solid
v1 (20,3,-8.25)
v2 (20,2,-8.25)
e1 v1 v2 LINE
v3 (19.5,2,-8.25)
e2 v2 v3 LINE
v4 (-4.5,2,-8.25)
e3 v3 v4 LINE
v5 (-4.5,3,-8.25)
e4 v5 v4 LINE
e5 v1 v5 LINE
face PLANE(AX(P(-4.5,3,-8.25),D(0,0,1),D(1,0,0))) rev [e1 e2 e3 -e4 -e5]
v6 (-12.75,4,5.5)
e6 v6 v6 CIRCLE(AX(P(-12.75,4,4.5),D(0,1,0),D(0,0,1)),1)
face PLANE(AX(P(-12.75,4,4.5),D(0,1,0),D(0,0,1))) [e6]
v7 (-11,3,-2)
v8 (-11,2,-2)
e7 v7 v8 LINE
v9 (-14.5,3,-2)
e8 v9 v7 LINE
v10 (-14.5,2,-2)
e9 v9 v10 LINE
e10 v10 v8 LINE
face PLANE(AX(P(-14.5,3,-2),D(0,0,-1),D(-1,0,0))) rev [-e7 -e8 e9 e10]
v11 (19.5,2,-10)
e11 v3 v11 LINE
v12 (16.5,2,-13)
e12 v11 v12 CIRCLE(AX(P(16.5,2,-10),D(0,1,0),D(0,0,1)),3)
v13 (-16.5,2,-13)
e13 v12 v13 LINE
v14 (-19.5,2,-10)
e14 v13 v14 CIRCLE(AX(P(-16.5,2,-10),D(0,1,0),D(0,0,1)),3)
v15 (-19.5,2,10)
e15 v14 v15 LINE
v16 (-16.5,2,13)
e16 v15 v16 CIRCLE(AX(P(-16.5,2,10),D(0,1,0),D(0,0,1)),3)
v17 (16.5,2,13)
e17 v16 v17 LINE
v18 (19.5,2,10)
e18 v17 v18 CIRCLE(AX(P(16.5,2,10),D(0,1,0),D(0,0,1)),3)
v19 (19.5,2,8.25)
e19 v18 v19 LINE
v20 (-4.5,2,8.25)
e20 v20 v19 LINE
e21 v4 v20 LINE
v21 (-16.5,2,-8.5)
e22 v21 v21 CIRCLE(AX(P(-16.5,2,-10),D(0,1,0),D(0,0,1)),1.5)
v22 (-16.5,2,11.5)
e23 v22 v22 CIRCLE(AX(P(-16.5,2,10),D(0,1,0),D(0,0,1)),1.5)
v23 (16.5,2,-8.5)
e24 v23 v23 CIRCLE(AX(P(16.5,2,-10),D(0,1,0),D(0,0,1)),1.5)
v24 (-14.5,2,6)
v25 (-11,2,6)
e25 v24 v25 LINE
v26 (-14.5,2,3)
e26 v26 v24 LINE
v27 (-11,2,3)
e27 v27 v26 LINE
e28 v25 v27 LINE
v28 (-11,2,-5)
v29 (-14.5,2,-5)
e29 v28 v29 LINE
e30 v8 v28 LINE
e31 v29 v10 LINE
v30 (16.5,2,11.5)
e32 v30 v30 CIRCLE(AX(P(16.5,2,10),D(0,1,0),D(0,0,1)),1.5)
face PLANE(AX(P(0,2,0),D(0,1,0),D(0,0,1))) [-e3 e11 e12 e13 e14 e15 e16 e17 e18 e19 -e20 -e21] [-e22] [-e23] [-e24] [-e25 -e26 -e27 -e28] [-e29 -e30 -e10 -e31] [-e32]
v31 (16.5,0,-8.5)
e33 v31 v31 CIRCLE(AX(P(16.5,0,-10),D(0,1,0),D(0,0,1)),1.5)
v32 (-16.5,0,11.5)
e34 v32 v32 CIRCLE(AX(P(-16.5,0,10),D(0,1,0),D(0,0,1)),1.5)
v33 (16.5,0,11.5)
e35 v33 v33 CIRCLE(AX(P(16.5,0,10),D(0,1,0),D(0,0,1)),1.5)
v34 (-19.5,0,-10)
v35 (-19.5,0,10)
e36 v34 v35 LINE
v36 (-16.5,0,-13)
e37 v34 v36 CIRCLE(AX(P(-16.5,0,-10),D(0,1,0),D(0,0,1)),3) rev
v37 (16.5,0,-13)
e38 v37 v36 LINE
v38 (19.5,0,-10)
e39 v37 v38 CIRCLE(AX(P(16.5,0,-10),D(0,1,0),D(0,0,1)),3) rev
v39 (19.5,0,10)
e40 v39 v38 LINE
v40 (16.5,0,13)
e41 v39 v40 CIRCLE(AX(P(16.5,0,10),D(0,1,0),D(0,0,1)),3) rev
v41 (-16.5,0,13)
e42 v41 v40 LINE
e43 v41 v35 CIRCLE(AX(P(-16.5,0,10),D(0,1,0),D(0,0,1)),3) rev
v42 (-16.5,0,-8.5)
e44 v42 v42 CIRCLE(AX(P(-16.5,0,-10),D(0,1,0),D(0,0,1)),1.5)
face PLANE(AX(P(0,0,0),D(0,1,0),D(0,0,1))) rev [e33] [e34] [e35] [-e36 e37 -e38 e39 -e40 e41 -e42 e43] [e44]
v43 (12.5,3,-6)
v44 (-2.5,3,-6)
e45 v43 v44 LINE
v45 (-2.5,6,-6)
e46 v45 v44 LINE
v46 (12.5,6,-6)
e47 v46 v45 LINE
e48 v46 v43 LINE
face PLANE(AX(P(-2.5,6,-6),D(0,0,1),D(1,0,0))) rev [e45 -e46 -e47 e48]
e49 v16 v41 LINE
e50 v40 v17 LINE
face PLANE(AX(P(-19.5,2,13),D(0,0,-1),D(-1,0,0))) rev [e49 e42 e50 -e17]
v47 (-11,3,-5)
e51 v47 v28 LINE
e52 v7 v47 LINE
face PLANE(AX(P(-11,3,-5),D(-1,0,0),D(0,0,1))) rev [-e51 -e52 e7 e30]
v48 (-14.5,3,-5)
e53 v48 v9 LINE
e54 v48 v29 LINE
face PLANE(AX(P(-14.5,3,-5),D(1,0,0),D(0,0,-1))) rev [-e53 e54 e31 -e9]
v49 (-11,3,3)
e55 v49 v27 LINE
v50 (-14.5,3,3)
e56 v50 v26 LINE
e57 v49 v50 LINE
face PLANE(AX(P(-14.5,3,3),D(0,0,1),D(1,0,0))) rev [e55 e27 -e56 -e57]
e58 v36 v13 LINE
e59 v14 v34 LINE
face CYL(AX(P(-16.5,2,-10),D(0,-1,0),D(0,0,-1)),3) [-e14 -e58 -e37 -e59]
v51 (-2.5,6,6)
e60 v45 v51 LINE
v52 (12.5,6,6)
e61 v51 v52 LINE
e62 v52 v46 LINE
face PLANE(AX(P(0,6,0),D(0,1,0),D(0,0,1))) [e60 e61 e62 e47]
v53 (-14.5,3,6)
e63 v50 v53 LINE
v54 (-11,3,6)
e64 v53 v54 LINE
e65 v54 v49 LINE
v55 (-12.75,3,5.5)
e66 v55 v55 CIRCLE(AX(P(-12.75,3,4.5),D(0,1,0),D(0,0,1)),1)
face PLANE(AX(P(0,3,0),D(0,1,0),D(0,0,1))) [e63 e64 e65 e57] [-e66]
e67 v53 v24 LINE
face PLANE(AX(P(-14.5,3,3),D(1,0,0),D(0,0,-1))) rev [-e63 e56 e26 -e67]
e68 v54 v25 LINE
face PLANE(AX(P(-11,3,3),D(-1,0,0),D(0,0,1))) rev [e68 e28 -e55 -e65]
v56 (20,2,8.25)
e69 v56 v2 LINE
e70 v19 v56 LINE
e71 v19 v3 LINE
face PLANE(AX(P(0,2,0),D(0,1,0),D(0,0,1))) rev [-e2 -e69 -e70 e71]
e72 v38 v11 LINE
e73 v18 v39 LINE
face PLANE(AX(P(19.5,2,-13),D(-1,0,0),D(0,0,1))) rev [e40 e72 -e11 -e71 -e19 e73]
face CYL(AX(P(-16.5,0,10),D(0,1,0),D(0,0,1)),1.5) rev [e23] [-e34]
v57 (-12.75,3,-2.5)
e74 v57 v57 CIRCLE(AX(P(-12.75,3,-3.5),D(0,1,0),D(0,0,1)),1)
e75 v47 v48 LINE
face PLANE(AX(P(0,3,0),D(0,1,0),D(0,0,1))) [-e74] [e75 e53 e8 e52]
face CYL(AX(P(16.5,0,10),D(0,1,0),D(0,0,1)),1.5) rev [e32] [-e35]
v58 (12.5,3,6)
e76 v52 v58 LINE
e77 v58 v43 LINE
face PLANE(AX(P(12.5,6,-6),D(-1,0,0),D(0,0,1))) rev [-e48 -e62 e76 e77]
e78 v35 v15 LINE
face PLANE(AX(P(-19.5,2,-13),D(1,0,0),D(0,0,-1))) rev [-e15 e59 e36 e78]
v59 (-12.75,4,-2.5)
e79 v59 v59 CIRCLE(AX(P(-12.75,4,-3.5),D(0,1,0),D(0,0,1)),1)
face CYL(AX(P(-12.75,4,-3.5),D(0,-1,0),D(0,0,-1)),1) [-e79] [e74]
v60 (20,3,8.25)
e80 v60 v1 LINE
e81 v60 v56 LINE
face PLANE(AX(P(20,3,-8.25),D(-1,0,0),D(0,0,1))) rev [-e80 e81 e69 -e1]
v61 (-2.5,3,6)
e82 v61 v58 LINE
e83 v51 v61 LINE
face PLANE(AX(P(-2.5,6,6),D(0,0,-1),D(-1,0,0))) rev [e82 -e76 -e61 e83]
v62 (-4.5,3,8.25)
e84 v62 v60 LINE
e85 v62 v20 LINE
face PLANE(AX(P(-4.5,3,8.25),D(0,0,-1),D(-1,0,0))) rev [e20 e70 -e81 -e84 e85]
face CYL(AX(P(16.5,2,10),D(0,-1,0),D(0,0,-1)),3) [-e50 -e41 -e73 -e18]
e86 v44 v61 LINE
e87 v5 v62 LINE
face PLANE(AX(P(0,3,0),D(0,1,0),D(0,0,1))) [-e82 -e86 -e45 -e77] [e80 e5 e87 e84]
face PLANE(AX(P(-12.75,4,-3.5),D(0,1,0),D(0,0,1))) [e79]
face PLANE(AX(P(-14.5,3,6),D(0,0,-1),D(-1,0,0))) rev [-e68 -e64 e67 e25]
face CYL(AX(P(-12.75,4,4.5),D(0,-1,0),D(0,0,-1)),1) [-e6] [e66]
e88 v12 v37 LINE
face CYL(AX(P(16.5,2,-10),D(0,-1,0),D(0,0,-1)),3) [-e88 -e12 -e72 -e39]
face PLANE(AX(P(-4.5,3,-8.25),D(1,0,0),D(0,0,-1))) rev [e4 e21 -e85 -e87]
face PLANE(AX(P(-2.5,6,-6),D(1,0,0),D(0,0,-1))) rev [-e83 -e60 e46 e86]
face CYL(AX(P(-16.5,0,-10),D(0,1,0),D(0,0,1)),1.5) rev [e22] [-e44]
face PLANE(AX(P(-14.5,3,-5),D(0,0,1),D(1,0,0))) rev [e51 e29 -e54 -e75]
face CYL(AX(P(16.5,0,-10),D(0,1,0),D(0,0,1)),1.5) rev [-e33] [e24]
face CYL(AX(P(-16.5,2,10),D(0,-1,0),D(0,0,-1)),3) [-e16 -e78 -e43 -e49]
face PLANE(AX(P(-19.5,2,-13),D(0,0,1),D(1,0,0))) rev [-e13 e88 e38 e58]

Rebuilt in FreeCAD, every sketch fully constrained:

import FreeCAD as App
import Part
import Sketcher


def edges_at(feature, points):
    """Names of the edges that pass closest to the given points."""
    edges = feature.Shape.Edges
    near = lambda p: min(range(len(edges)), key=lambda i: edges[i].distToShape(Part.Vertex(*p))[0])
    return sorted({f"Edge{near(p) + 1}" for p in points})

doc = App.newDocument("Part")
params = doc.addObject("Spreadsheet::Sheet", "Params")
for row, (alias, value) in enumerate([
    ("sketch1_width", "39 mm"),
    ("sketch1_height", "26 mm"),
    ("pad1_length", "2 mm"),
    ("sketch2_diameter", "3 mm"),
    ("sketch3_width", "24.5 mm"),
    ("sketch3_height", "16.5 mm"),
    ("pad2_length", "1 mm"),
    ("sketch4_width", "15 mm"),
    ("sketch4_height", "12 mm"),
    ("pad3_length", "3 mm"),
    ("sketch5_height", "3 mm"),
    ("sketch5_width", "3.5 mm"),
    ("pad4_length", "1 mm"),
    ("sketch6_diameter", "2 mm"),
    ("pad5_length", "1 mm"),
    ("fillet_radius", "3 mm"),
], start=1):
    params.set(f"A{row}", alias)
    params.set(f"B{row}", "=" + value)
    params.setAlias(f"B{row}", alias)

body = doc.addObject("PartDesign::Body", "Body")

# Sketch on XZ plane
sketch1 = body.newObject("Sketcher::SketchObject", "Sketch")
sketch1.AttachmentSupport = (doc.getObject("XZ_Plane"), [""])
sketch1.MapMode = "FlatFace"
sketch1.addGeometry([
    Part.LineSegment(App.Vector(-20, -13, 0), App.Vector(-20, 13, 0)),
    Part.LineSegment(App.Vector(-20, 13, 0), App.Vector(20, 13, 0)),
    Part.LineSegment(App.Vector(20, 13, 0), App.Vector(20, -13, 0)),
    Part.LineSegment(App.Vector(20, -13, 0), App.Vector(-20, -13, 0)),
], False)
sketch1.addConstraint([
    Sketcher.Constraint("Coincident", 0, 2, 1, 1),
    Sketcher.Constraint("Coincident", 1, 2, 2, 1),
    Sketcher.Constraint("Coincident", 2, 2, 3, 1),
    Sketcher.Constraint("Coincident", 3, 2, 0, 1),
    Sketcher.Constraint("Vertical", 0),
    Sketcher.Constraint("Horizontal", 1),
    Sketcher.Constraint("Vertical", 2),
    Sketcher.Constraint("Horizontal", 3),
    Sketcher.Constraint("Symmetric", 0, 2, 2, 2, -1, 1),
    Sketcher.Constraint("DistanceX", 1, 1, 1, 2, 39.0),
    Sketcher.Constraint("DistanceY", 0, 1, 0, 2, 26.0),
])
sketch1.setExpression("Constraints[9]", "Params.sketch1_width")
sketch1.setExpression("Constraints[10]", "Params.sketch1_height")
pad1 = body.newObject("PartDesign::Pad", "Pad")
pad1.Profile = sketch1
pad1.setExpression("Length", "Params.pad1_length")
pad1.Reversed = True

# Sketch on XZ plane
sketch2 = body.newObject("Sketcher::SketchObject", "Sketch001")
sketch2.AttachmentSupport = (doc.getObject("XZ_Plane"), [""])
sketch2.MapMode = "FlatFace"
sketch2.AttachmentOffset = App.Placement(App.Vector(0, 0, -2), App.Rotation())
sketch2.addGeometry([
    Part.Circle(App.Vector(-16.5, -10, 0), App.Vector(0, 0, 1), 1.5),
    Part.Circle(App.Vector(-16.5, 10, 0), App.Vector(0, 0, 1), 1.5),
    Part.Circle(App.Vector(16.5, 10, 0), App.Vector(0, 0, 1), 1.5),
    Part.Circle(App.Vector(16.5, -10, 0), App.Vector(0, 0, 1), 1.5),
], False)
sketch2.addConstraint([
    Sketcher.Constraint("Equal", 0, 1),
    Sketcher.Constraint("Equal", 1, 2),
    Sketcher.Constraint("Equal", 2, 3),
    Sketcher.Constraint("Symmetric", 0, 3, 2, 3, -1, 1),
    Sketcher.Constraint("Symmetric", 1, 3, 3, 3, -1, 1),
    Sketcher.Constraint("Symmetric", 1, 3, 2, 3, -2),
    Sketcher.Constraint("Diameter", 0, 3.0),
    Sketcher.Constraint("DistanceY", 0, 3, -1, 1, 10.0),
    Sketcher.Constraint("DistanceX", 1, 3, 2, 3, 33.0),
])
sketch2.setExpression("Constraints[6]", "Params.sketch2_diameter")
pocket1 = body.newObject("PartDesign::Pocket", "Pocket")
pocket1.Profile = sketch2
pocket1.Type = "ThroughAll"
pocket1.Reversed = True

# Sketch on XZ plane
sketch3 = body.newObject("Sketcher::SketchObject", "Sketch002")
sketch3.AttachmentSupport = (doc.getObject("XZ_Plane"), [""])
sketch3.MapMode = "FlatFace"
sketch3.AttachmentOffset = App.Placement(App.Vector(0, 0, -2), App.Rotation())
sketch3.addGeometry([
    Part.LineSegment(App.Vector(-4, -8, 0), App.Vector(-4, 8, 0)),
    Part.LineSegment(App.Vector(-4, 8, 0), App.Vector(20, 8, 0)),
    Part.LineSegment(App.Vector(20, 8, 0), App.Vector(20, -8, 0)),
    Part.LineSegment(App.Vector(20, -8, 0), App.Vector(-4, -8, 0)),
], False)
sketch3.addConstraint([
    Sketcher.Constraint("Coincident", 0, 2, 1, 1),
    Sketcher.Constraint("Coincident", 1, 2, 2, 1),
    Sketcher.Constraint("Coincident", 2, 2, 3, 1),
    Sketcher.Constraint("Coincident", 3, 2, 0, 1),
    Sketcher.Constraint("Vertical", 0),
    Sketcher.Constraint("Horizontal", 1),
    Sketcher.Constraint("Vertical", 2),
    Sketcher.Constraint("Horizontal", 3),
    Sketcher.Constraint("DistanceX", 1, 1, 1, 2, 24.5),
    Sketcher.Constraint("DistanceY", 0, 1, 0, 2, 16.5),
    Sketcher.Constraint("DistanceX", -1, 1, 1, 2, 20.0),
    Sketcher.Constraint("DistanceY", -1, 1, 0, 2, 8.25),
])
sketch3.setExpression("Constraints[8]", "Params.sketch3_width")
sketch3.setExpression("Constraints[9]", "Params.sketch3_height")
pad2 = body.newObject("PartDesign::Pad", "Pad001")
pad2.Profile = sketch3
pad2.setExpression("Length", "Params.pad2_length")
pad2.Reversed = True

# Sketch on XZ plane
sketch4 = body.newObject("Sketcher::SketchObject", "Sketch003")
sketch4.AttachmentSupport = (doc.getObject("XZ_Plane"), [""])
sketch4.MapMode = "FlatFace"
sketch4.AttachmentOffset = App.Placement(App.Vector(0, 0, -3), App.Rotation())
sketch4.addGeometry([
    Part.LineSegment(App.Vector(-2, -6, 0), App.Vector(-2, 6, 0)),
    Part.LineSegment(App.Vector(-2, 6, 0), App.Vector(12, 6, 0)),
    Part.LineSegment(App.Vector(12, 6, 0), App.Vector(12, -6, 0)),
    Part.LineSegment(App.Vector(12, -6, 0), App.Vector(-2, -6, 0)),
], False)
sketch4.addConstraint([
    Sketcher.Constraint("Coincident", 0, 2, 1, 1),
    Sketcher.Constraint("Coincident", 1, 2, 2, 1),
    Sketcher.Constraint("Coincident", 2, 2, 3, 1),
    Sketcher.Constraint("Coincident", 3, 2, 0, 1),
    Sketcher.Constraint("Vertical", 0),
    Sketcher.Constraint("Horizontal", 1),
    Sketcher.Constraint("Vertical", 2),
    Sketcher.Constraint("Horizontal", 3),
    Sketcher.Constraint("DistanceX", 1, 1, 1, 2, 15.0),
    Sketcher.Constraint("DistanceY", 0, 1, 0, 2, 12.0),
    Sketcher.Constraint("DistanceY", -1, 1, 0, 2, 6.0),
    Sketcher.Constraint("DistanceX", 0, 2, -1, 1, 2.5),
])
sketch4.setExpression("Constraints[8]", "Params.sketch4_width")
sketch4.setExpression("Constraints[9]", "Params.sketch4_height")
pad3 = body.newObject("PartDesign::Pad", "Pad002")
pad3.Profile = sketch4
pad3.setExpression("Length", "Params.pad3_length")
pad3.Reversed = True

# Sketch on XZ plane
sketch5 = body.newObject("Sketcher::SketchObject", "Sketch004")
sketch5.AttachmentSupport = (doc.getObject("XZ_Plane"), [""])
sketch5.MapMode = "FlatFace"
sketch5.AttachmentOffset = App.Placement(App.Vector(0, 0, -2), App.Rotation())
sketch5.addGeometry([
    Part.LineSegment(App.Vector(-14.5, -5, 0), App.Vector(-14.5, -2, 0)),  # 0
    Part.LineSegment(App.Vector(-14.5, -2, 0), App.Vector(-11, -2, 0)),  # 1
    Part.LineSegment(App.Vector(-11, -2, 0), App.Vector(-11, -5, 0)),  # 2
    Part.LineSegment(App.Vector(-11, -5, 0), App.Vector(-14.5, -5, 0)),  # 3
    Part.LineSegment(App.Vector(-14.5, 3, 0), App.Vector(-14.5, 6, 0)),  # 4
    Part.LineSegment(App.Vector(-14.5, 6, 0), App.Vector(-11, 6, 0)),  # 5
    Part.LineSegment(App.Vector(-11, 6, 0), App.Vector(-11, 3, 0)),  # 6
    Part.LineSegment(App.Vector(-11, 3, 0), App.Vector(-14.5, 3, 0)),  # 7
], False)
sketch5.addConstraint([
    Sketcher.Constraint("Coincident", 0, 2, 1, 1),
    Sketcher.Constraint("Coincident", 1, 2, 2, 1),
    Sketcher.Constraint("Coincident", 2, 2, 3, 1),
    Sketcher.Constraint("Coincident", 3, 2, 0, 1),
    Sketcher.Constraint("Coincident", 4, 2, 5, 1),
    Sketcher.Constraint("Coincident", 5, 2, 6, 1),
    Sketcher.Constraint("Coincident", 6, 2, 7, 1),
    Sketcher.Constraint("Coincident", 7, 2, 4, 1),
    Sketcher.Constraint("Vertical", 0),
    Sketcher.Constraint("Horizontal", 1),
    Sketcher.Constraint("Vertical", 2),
    Sketcher.Constraint("Horizontal", 3),
    Sketcher.Constraint("Vertical", 4),
    Sketcher.Constraint("Horizontal", 5),
    Sketcher.Constraint("Vertical", 6),
    Sketcher.Constraint("Horizontal", 7),
    Sketcher.Constraint("Vertical", 3, 2, 4, 2),
    Sketcher.Constraint("Vertical", 2, 2, 5, 2),
    Sketcher.Constraint("Equal", 2, 4),
    Sketcher.Constraint("DistanceY", 0, 1, 0, 2, 3.0),
    Sketcher.Constraint("DistanceX", 1, 1, 1, 2, 3.5),
    Sketcher.Constraint("DistanceY", 0, 2, -1, 1, 2.0),
    Sketcher.Constraint("DistanceX", 1, 2, -1, 1, 11.0),
    Sketcher.Constraint("DistanceY", -1, 1, 4, 2, 6.0),
])
sketch5.setExpression("Constraints[19]", "Params.sketch5_height")
sketch5.setExpression("Constraints[20]", "Params.sketch5_width")
pad4 = body.newObject("PartDesign::Pad", "Pad003")
pad4.Profile = sketch5
pad4.setExpression("Length", "Params.pad4_length")
pad4.Reversed = True

# Sketch on XZ plane
sketch6 = body.newObject("Sketcher::SketchObject", "Sketch005")
sketch6.AttachmentSupport = (doc.getObject("XZ_Plane"), [""])
sketch6.MapMode = "FlatFace"
sketch6.AttachmentOffset = App.Placement(App.Vector(0, 0, -3), App.Rotation())
sketch6.addGeometry([
    Part.Circle(App.Vector(-12.8, -3.5, 0), App.Vector(0, 0, 1), 1),
    Part.Circle(App.Vector(-12.8, 4.5, 0), App.Vector(0, 0, 1), 1),
], False)
sketch6.addConstraint([
    Sketcher.Constraint("Equal", 0, 1),
    Sketcher.Constraint("Vertical", 0, 3, 1, 3),
    Sketcher.Constraint("Diameter", 0, 2.0),
    Sketcher.Constraint("DistanceY", 0, 3, 1, 3, 8.0),
    Sketcher.Constraint("DistanceY", 0, 3, -1, 1, 3.5),
    Sketcher.Constraint("DistanceX", 0, 3, -1, 1, 12.75),
])
sketch6.setExpression("Constraints[2]", "Params.sketch6_diameter")
pad5 = body.newObject("PartDesign::Pad", "Pad004")
pad5.Profile = sketch6
pad5.setExpression("Length", "Params.pad5_length")
pad5.Reversed = True
doc.recompute()

fillet = body.newObject("PartDesign::Fillet", "Fillet")
fillet.Base = (pad5, edges_at(pad5, [
    (19.5, 1, 13),
    (-19.5, 1, 13),
    (-19.5, 1, -13),
    (19.5, 1, -13),
]))
fillet.setExpression("Radius", "Params.fillet_radius")

doc.recompute()
